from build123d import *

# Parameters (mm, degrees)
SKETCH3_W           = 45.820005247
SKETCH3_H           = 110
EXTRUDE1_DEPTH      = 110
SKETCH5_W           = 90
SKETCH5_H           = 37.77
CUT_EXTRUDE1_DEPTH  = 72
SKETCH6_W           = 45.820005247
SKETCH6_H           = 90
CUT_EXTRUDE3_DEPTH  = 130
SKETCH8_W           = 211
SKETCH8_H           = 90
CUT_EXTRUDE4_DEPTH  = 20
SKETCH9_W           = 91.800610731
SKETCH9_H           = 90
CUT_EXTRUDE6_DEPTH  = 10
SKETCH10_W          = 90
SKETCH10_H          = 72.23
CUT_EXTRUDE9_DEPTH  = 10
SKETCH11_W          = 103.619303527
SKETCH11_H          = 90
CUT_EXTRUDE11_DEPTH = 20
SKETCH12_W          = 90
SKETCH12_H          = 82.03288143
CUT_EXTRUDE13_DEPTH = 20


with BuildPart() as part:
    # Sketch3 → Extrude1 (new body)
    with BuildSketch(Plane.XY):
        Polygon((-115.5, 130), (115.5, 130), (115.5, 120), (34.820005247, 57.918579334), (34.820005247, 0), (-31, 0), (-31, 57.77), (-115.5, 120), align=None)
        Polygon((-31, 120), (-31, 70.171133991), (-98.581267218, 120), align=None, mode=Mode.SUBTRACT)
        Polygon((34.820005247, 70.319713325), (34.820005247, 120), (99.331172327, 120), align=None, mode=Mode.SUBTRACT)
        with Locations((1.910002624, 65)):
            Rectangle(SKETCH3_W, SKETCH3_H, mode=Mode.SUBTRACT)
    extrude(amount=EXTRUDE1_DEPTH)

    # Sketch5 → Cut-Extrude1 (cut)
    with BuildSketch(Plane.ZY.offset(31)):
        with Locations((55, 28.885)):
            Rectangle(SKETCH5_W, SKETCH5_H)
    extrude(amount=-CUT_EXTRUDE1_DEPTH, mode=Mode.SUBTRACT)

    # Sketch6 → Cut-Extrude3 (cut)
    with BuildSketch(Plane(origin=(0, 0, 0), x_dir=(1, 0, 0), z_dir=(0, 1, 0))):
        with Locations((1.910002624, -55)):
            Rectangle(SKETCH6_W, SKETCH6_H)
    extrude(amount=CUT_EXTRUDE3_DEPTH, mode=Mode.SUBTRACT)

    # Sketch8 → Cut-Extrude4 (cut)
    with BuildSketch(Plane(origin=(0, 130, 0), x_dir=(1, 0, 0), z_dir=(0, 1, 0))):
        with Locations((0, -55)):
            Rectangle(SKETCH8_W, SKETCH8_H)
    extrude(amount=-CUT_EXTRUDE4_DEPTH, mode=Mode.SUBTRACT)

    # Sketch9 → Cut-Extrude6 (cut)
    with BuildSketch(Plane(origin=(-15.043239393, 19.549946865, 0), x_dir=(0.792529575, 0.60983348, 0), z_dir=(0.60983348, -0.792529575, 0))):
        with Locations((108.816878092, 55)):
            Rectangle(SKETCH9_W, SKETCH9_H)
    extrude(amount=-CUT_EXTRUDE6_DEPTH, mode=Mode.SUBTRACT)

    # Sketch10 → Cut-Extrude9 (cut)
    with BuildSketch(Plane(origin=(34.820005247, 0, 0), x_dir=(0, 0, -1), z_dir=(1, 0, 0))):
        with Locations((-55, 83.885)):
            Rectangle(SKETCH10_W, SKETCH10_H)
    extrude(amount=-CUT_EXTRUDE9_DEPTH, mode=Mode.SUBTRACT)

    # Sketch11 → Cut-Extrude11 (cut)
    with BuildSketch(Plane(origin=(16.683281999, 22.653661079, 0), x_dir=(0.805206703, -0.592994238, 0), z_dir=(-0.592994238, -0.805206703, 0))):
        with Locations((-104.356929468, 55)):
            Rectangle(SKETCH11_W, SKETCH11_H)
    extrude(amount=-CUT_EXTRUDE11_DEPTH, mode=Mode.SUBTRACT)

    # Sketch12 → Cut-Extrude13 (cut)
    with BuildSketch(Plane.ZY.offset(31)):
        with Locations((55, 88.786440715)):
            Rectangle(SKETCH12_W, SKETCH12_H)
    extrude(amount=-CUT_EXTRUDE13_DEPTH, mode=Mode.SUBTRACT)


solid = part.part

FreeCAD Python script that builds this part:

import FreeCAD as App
import Part
import Sketcher

V = App.Vector
Q = App.Units.Quantity

doc = App.newDocument("Part")
body = doc.addObject("PartDesign::Body", "Body")

sketch1 = doc.addObject("Sketcher::SketchObject", "Sketch")
body.addObject(sketch1)
sketch1.AttachmentSupport = (doc.XY_Plane, [""])
sketch1.MapMode = "FlatFace"
sketch1.addGeometry(Part.LineSegment(V(116, 130, 0), V(-116, 130, 0)), False)
sketch1.addGeometry(Part.LineSegment(V(-116, 130, 0), V(-116, 120, 0)), False)
sketch1.addGeometry(Part.LineSegment(V(-116, 120, 0), V(-31, 58, 0)), False)
sketch1.addGeometry(Part.LineSegment(V(-31, 58, 0), V(-31, 0, 0)), False)
sketch1.addGeometry(Part.LineSegment(V(-31, 0, 0), V(35, 0, 0)), False)
sketch1.addGeometry(Part.LineSegment(V(35, 0, 0), V(35, 58, 0)), False)
sketch1.addGeometry(Part.LineSegment(V(35, 58, 0), V(116, 120, 0)), False)
sketch1.addGeometry(Part.LineSegment(V(116, 120, 0), V(116, 130, 0)), False)
sketch1.addGeometry(Part.LineSegment(V(-21, 10, 0), V(-21, 120, 0)), False)
sketch1.addGeometry(Part.LineSegment(V(-21, 120, 0), V(25, 120, 0)), False)
sketch1.addGeometry(Part.LineSegment(V(25, 120, 0), V(25, 10, 0)), False)
sketch1.addGeometry(Part.LineSegment(V(25, 10, 0), V(-21, 10, 0)), False)
sketch1.addGeometry(Part.LineSegment(V(35, 70, 0), V(35, 120, 0)), False)
sketch1.addGeometry(Part.LineSegment(V(35, 120, 0), V(99, 120, 0)), False)
sketch1.addGeometry(Part.LineSegment(V(99, 120, 0), V(35, 70, 0)), False)
sketch1.addGeometry(Part.LineSegment(V(-31, 120, 0), V(-31, 70, 0)), False)
sketch1.addGeometry(Part.LineSegment(V(-31, 70, 0), V(-99, 120, 0)), False)
sketch1.addGeometry(Part.LineSegment(V(-99, 120, 0), V(-31, 120, 0)), False)
sketch1.addConstraint(Sketcher.Constraint("Coincident", 0, 2, 1, 1))
sketch1.addConstraint(Sketcher.Constraint("Coincident", 1, 2, 2, 1))
sketch1.addConstraint(Sketcher.Constraint("Coincident", 2, 2, 3, 1))
sketch1.addConstraint(Sketcher.Constraint("Coincident", 3, 2, 4, 1))
sketch1.addConstraint(Sketcher.Constraint("Coincident", 4, 2, 5, 1))
sketch1.addConstraint(Sketcher.Constraint("Coincident", 5, 2, 6, 1))
sketch1.addConstraint(Sketcher.Constraint("Coincident", 6, 2, 7, 1))
sketch1.addConstraint(Sketcher.Constraint("Coincident", 7, 2, 0, 1))
sketch1.addConstraint(Sketcher.Constraint("Coincident", 8, 2, 9, 1))
sketch1.addConstraint(Sketcher.Constraint("Coincident", 9, 2, 10, 1))
sketch1.addConstraint(Sketcher.Constraint("Coincident", 10, 2, 11, 1))
sketch1.addConstraint(Sketcher.Constraint("Coincident", 11, 2, 8, 1))
sketch1.addConstraint(Sketcher.Constraint("Coincident", 12, 2, 13, 1))
sketch1.addConstraint(Sketcher.Constraint("Coincident", 13, 2, 14, 1))
sketch1.addConstraint(Sketcher.Constraint("Coincident", 14, 2, 12, 1))
sketch1.addConstraint(Sketcher.Constraint("Coincident", 15, 2, 16, 1))
sketch1.addConstraint(Sketcher.Constraint("Coincident", 16, 2, 17, 1))
sketch1.addConstraint(Sketcher.Constraint("Coincident", 17, 2, 15, 1))
sketch1.addConstraint(Sketcher.Constraint("Horizontal", 0))
sketch1.addConstraint(Sketcher.Constraint("Vertical", 1))
sketch1.addConstraint(Sketcher.Constraint("Vertical", 3))
sketch1.addConstraint(Sketcher.Constraint("Horizontal", 4))
sketch1.addConstraint(Sketcher.Constraint("Vertical", 5))
sketch1.addConstraint(Sketcher.Constraint("Vertical", 7))
sketch1.addConstraint(Sketcher.Constraint("Vertical", 8))
sketch1.addConstraint(Sketcher.Constraint("Horizontal", 9))
sketch1.addConstraint(Sketcher.Constraint("Vertical", 10))
sketch1.addConstraint(Sketcher.Constraint("Horizontal", 11))
sketch1.addConstraint(Sketcher.Constraint("Vertical", 12))
sketch1.addConstraint(Sketcher.Constraint("Horizontal", 13))
sketch1.addConstraint(Sketcher.Constraint("Vertical", 15))
sketch1.addConstraint(Sketcher.Constraint("Horizontal", 17))
sketch1.addConstraint(Sketcher.Constraint("Symmetric", 1, 2, 6, 2, -2))
sketch1.addConstraint(Sketcher.Constraint("PointOnObject", 3, 2, -1))
sketch1.addConstraint(Sketcher.Constraint("Horizontal", 6, 2, 8, 2))
sketch1.addConstraint(Sketcher.Constraint("Horizontal", 9, 2, 12, 2))
sketch1.addConstraint(Sketcher.Constraint("Horizontal", 13, 2, 16, 2))
sketch1.addConstraint(Sketcher.Constraint("Vertical", 5, 2, 12, 2))
sketch1.addConstraint(Sketcher.Constraint("Vertical", 3, 2, 15, 2))
sketch1.addConstraint(Sketcher.Constraint("DistanceX", 0, 2, 0, 1, Q("231 mm")))
sketch1.addConstraint(Sketcher.Constraint("DistanceY", 1, 2, 1, 1, Q("10 mm")))
sketch1.addConstraint(Sketcher.Constraint("DistanceY", 8, 1, 8, 2, Q("110 mm")))
sketch1.addConstraint(Sketcher.Constraint("DistanceY", -1, 1, 0, 2, Q("130 mm")))
sketch1.addConstraint(Sketcher.Constraint("DistanceX", 2, 2, -1, 1, Q("31 mm")))
sketch1.addConstraint(Sketcher.Constraint("DistanceX", 8, 2, -1, 1, Q("21 mm")))
sketch1.addConstraint(Sketcher.Constraint("Angle", 14, Q("-142.4 deg")))
sketch1.addConstraint(Sketcher.Constraint("DistanceX", 9, 2, 5, 2, Q("10 mm")))
sketch1.addConstraint(Sketcher.Constraint("DistanceY", 3, 2, 3, 1, Q("57.77 mm")))
sketch1.addConstraint(Sketcher.Constraint("DistanceY", 5, 1, 5, 2, Q("57.918579 mm")))
sketch1.addConstraint(Sketcher.Constraint("Distance", 6, Q("101.800611 mm")))
sketch1.addConstraint(Sketcher.Constraint("DistanceX", 13, 1, 13, 2, Q("64.511167 mm")))
sketch1.addConstraint(Sketcher.Constraint("DistanceX", 17, 1, 17, 2, Q("67.581267 mm")))
sketch1.addConstraint(Sketcher.Constraint("DistanceY", 15, 2, 15, 1, Q("49.828866 mm")))
pad1 = doc.addObject("PartDesign::Pad", "Pad")
body.addObject(pad1)
pad1.Profile = sketch1
pad1.Length = 110

sketch2 = doc.addObject("Sketcher::SketchObject", "Sketch001")
body.addObject(sketch2)
sketch2.AttachmentSupport = (doc.YZ_Plane, [""])
sketch2.MapMode = "FlatFace"
sketch2.AttachmentOffset = App.Placement(V(0, 0, -31), App.Rotation())
sketch2.addGeometry(Part.LineSegment(V(48, 10, 0), V(10, 10, 0)), False)
sketch2.addGeometry(Part.LineSegment(V(10, 10, 0), V(10, 100, 0)), False)
sketch2.addGeometry(Part.LineSegment(V(10, 100, 0), V(48, 100, 0)), False)
sketch2.addGeometry(Part.LineSegment(V(48, 100, 0), V(48, 10, 0)), False)
sketch2.addConstraint(Sketcher.Constraint("Coincident", 0, 2, 1, 1))
sketch2.addConstraint(Sketcher.Constraint("Coincident", 1, 2, 2, 1))
sketch2.addConstraint(Sketcher.Constraint("Coincident", 2, 2, 3, 1))
sketch2.addConstraint(Sketcher.Constraint("Coincident", 3, 2, 0, 1))
sketch2.addConstraint(Sketcher.Constraint("Horizontal", 0))
sketch2.addConstraint(Sketcher.Constraint("Vertical", 1))
sketch2.addConstraint(Sketcher.Constraint("Horizontal", 2))
sketch2.addConstraint(Sketcher.Constraint("Vertical", 3))
sketch2.addConstraint(Sketcher.Constraint("DistanceY", 1, 1, 1, 2, Q("90 mm")))
sketch2.addConstraint(Sketcher.Constraint("DistanceX", -1, 1, 0, 2, Q("10 mm")))
sketch2.addConstraint(Sketcher.Constraint("DistanceY", -1, 1, 0, 2, Q("10 mm")))
sketch2.addConstraint(Sketcher.Constraint("DistanceX", 0, 2, 0, 1, Q("37.77 mm")))
pocket1 = doc.addObject("PartDesign::Pocket", "Pocket")
body.addObject(pocket1)
pocket1.Profile = sketch2
pocket1.Length = 72
pocket1.Reversed = True

sketch3 = doc.addObject("Sketcher::SketchObject", "Sketch002")
body.addObject(sketch3)
sketch3.AttachmentSupport = (doc.XZ_Plane, [""])
sketch3.MapMode = "FlatFace"
sketch3.addGeometry(Part.LineSegment(V(-21, 10, 0), V(-21, 100, 0)), False)
sketch3.addGeometry(Part.LineSegment(V(-21, 100, 0), V(25, 100, 0)), False)
sketch3.addGeometry(Part.LineSegment(V(25, 100, 0), V(25, 10, 0)), False)
sketch3.addGeometry(Part.LineSegment(V(25, 10, 0), V(-21, 10, 0)), False)
sketch3.addConstraint(Sketcher.Constraint("Coincident", 0, 2, 1, 1))
sketch3.addConstraint(Sketcher.Constraint("Coincident", 1, 2, 2, 1))
sketch3.addConstraint(Sketcher.Constraint("Coincident", 2, 2, 3, 1))
sketch3.addConstraint(Sketcher.Constraint("Coincident", 3, 2, 0, 1))
sketch3.addConstraint(Sketcher.Constraint("Vertical", 0))
sketch3.addConstraint(Sketcher.Constraint("Horizontal", 1))
sketch3.addConstraint(Sketcher.Constraint("Vertical", 2))
sketch3.addConstraint(Sketcher.Constraint("Horizontal", 3))
sketch3.addConstraint(Sketcher.Constraint("DistanceY", 0, 1, 0, 2, Q("90 mm")))
sketch3.addConstraint(Sketcher.Constraint("DistanceX", 0, 2, -1, 1, Q("21 mm")))
sketch3.addConstraint(Sketcher.Constraint("DistanceY", -1, 1, 0, 2, Q("100 mm")))
sketch3.addConstraint(Sketcher.Constraint("DistanceX", 1, 1, 1, 2, Q("45.820005 mm")))
pocket2 = doc.addObject("PartDesign::Pocket", "Pocket001")
body.addObject(pocket2)
pocket2.Profile = sketch3
pocket2.Length = 130

sketch4 = doc.addObject("Sketcher::SketchObject", "Sketch003")
body.addObject(sketch4)
sketch4.AttachmentSupport = (doc.XZ_Plane, [""])
sketch4.MapMode = "FlatFace"
sketch4.AttachmentOffset = App.Placement(V(0, 0, -130), App.Rotation())
sketch4.addGeometry(Part.LineSegment(V(-106, 10, 0), V(-106, 100, 0)), False)
sketch4.addGeometry(Part.LineSegment(V(-106, 100, 0), V(106, 100, 0)), False)
sketch4.addGeometry(Part.LineSegment(V(106, 100, 0), V(106, 10, 0)), False)
sketch4.addGeometry(Part.LineSegment(V(106, 10, 0), V(-106, 10, 0)), False)
sketch4.addConstraint(Sketcher.Constraint("Coincident", 0, 2, 1, 1))
sketch4.addConstraint(Sketcher.Constraint("Coincident", 1, 2, 2, 1))
sketch4.addConstraint(Sketcher.Constraint("Coincident", 2, 2, 3, 1))
sketch4.addConstraint(Sketcher.Constraint("Coincident", 3, 2, 0, 1))
sketch4.addConstraint(Sketcher.Constraint("Vertical", 0))
sketch4.addConstraint(Sketcher.Constraint("Horizontal", 1))
sketch4.addConstraint(Sketcher.Constraint("Vertical", 2))
sketch4.addConstraint(Sketcher.Constraint("Horizontal", 3))
sketch4.addConstraint(Sketcher.Constraint("DistanceX", 1, 1, 1, 2, Q("211 mm")))
sketch4.addConstraint(Sketcher.Constraint("DistanceY", 0, 1, 0, 2, Q("90 mm")))
sketch4.addConstraint(Sketcher.Constraint("DistanceY", -1, 1, 0, 2, Q("100 mm")))
sketch4.addConstraint(Sketcher.Constraint("DistanceX", 0, 2, -1, 1, Q("105.5 mm")))
pocket3 = doc.addObject("PartDesign::Pocket", "Pocket002")
body.addObject(pocket3)
pocket3.Profile = sketch4
pocket3.Length = 20
pocket3.Reversed = True

sketch5 = doc.addObject("Sketcher::SketchObject", "Sketch004")
body.addObject(sketch5)
sketch5.Placement = App.Placement(V(-15.043239, 19.549947, 0), App.Rotation(V(0.792529575, 0.60983348, 0), V(0, 0, 1.000000001), V(0.60983348, -0.792529575, 0), "ZXY"))
sketch5.addGeometry(Part.LineSegment(V(63, 100, 0), V(63, 10, 0)), False)
sketch5.addGeometry(Part.LineSegment(V(63, 10, 0), V(155, 10, 0)), False)
sketch5.addGeometry(Part.LineSegment(V(155, 10, 0), V(155, 100, 0)), False)
sketch5.addGeometry(Part.LineSegment(V(155, 100, 0), V(63, 100, 0)), False)
sketch5.addConstraint(Sketcher.Constraint("Coincident", 0, 2, 1, 1))
sketch5.addConstraint(Sketcher.Constraint("Coincident", 1, 2, 2, 1))
sketch5.addConstraint(Sketcher.Constraint("Coincident", 2, 2, 3, 1))
sketch5.addConstraint(Sketcher.Constraint("Coincident", 3, 2, 0, 1))
sketch5.addConstraint(Sketcher.Constraint("Vertical", 0))
sketch5.addConstraint(Sketcher.Constraint("Horizontal", 1))
sketch5.addConstraint(Sketcher.Constraint("Vertical", 2))
sketch5.addConstraint(Sketcher.Constraint("Horizontal", 3))
sketch5.addConstraint(Sketcher.Constraint("DistanceY", 0, 2, 0, 1, Q("90 mm")))
sketch5.addConstraint(Sketcher.Constraint("DistanceY", -1, 1, 0, 2, Q("10 mm")))
sketch5.addConstraint(Sketcher.Constraint("DistanceX", 1, 1, 1, 2, Q("91.800611 mm")))
sketch5.addConstraint(Sketcher.Constraint("DistanceX", -1, 1, 0, 2, Q("62.916573 mm")))
pocket4 = doc.addObject("PartDesign::Pocket", "Pocket003")
body.addObject(pocket4)
pocket4.Profile = sketch5
pocket4.Length = 10

sketch6 = doc.addObject("Sketcher::SketchObject", "Sketch005")
body.addObject(sketch6)
sketch6.AttachmentSupport = (doc.YZ_Plane, [""])
sketch6.MapMode = "FlatFace"
sketch6.AttachmentOffset = App.Placement(V(0, 0, 34.820005), App.Rotation())
sketch6.addGeometry(Part.LineSegment(V(120, 100, 0), V(48, 100, 0)), False)
sketch6.addGeometry(Part.LineSegment(V(48, 100, 0), V(48, 10, 0)), False)
sketch6.addGeometry(Part.LineSegment(V(48, 10, 0), V(120, 10, 0)), False)
sketch6.addGeometry(Part.LineSegment(V(120, 10, 0), V(120, 100, 0)), False)
sketch6.addConstraint(Sketcher.Constraint("Coincident", 0, 2, 1, 1))
sketch6.addConstraint(Sketcher.Constraint("Coincident", 1, 2, 2, 1))
sketch6.addConstraint(Sketcher.Constraint("Coincident", 2, 2, 3, 1))
sketch6.addConstraint(Sketcher.Constraint("Coincident", 3, 2, 0, 1))
sketch6.addConstraint(Sketcher.Constraint("Horizontal", 0))
sketch6.addConstraint(Sketcher.Constraint("Vertical", 1))
sketch6.addConstraint(Sketcher.Constraint("Horizontal", 2))
sketch6.addConstraint(Sketcher.Constraint("Vertical", 3))
sketch6.addConstraint(Sketcher.Constraint("DistanceY", 1, 2, 1, 1, Q("90 mm")))
sketch6.addConstraint(Sketcher.Constraint("DistanceY", -1, 1, 0, 2, Q("100 mm")))
sketch6.addConstraint(Sketcher.Constraint("DistanceX", -1, 1, 2, 2, Q("120 mm")))
sketch6.addConstraint(Sketcher.Constraint("DistanceX", 0, 2, 0, 1, Q("72.23 mm")))
pocket5 = doc.addObject("PartDesign::Pocket", "Pocket004")
body.addObject(pocket5)
pocket5.Profile = sketch6
pocket5.Length = 10

sketch7 = doc.addObject("Sketcher::SketchObject", "Sketch006")
body.addObject(sketch7)
sketch7.Placement = App.Placement(V(16.683282, 22.653661, 0), App.Rotation(V(0.805206703, -0.592994238, 0), V(0, 0, 1.000000001), V(-0.592994238, -0.805206703, 0), "ZXY"))
sketch7.addGeometry(Part.LineSegment(V(-156, 100, 0), V(-156, 10, 0)), False)
sketch7.addGeometry(Part.LineSegment(V(-156, 10, 0), V(-53, 10, 0)), False)
sketch7.addGeometry(Part.LineSegment(V(-53, 10, 0), V(-53, 100, 0)), False)
sketch7.addGeometry(Part.LineSegment(V(-53, 100, 0), V(-156, 100, 0)), False)
sketch7.addConstraint(Sketcher.Constraint("Coincident", 0, 2, 1, 1))
sketch7.addConstraint(Sketcher.Constraint("Coincident", 1, 2, 2, 1))
sketch7.addConstraint(Sketcher.Constraint("Coincident", 2, 2, 3, 1))
sketch7.addConstraint(Sketcher.Constraint("Coincident", 3, 2, 0, 1))
sketch7.addConstraint(Sketcher.Constraint("Vertical", 0))
sketch7.addConstraint(Sketcher.Constraint("Horizontal", 1))
sketch7.addConstraint(Sketcher.Constraint("Vertical", 2))
sketch7.addConstraint(Sketcher.Constraint("Horizontal", 3))
sketch7.addConstraint(Sketcher.Constraint("DistanceY", 0, 2, 0, 1, Q("90 mm")))
sketch7.addConstraint(Sketcher.Constraint("DistanceY", -1, 1, 0, 2, Q("10 mm")))
sketch7.addConstraint(Sketcher.Constraint("DistanceX", 1, 1, 1, 2, Q("103.619304 mm")))
sketch7.addConstraint(Sketcher.Constraint("DistanceX", 0, 2, -1, 1, Q("156.166581 mm")))
pocket6 = doc.addObject("PartDesign::Pocket", "Pocket005")
body.addObject(pocket6)
pocket6.Profile = sketch7
pocket6.Length = 20

sketch8 = doc.addObject("Sketcher::SketchObject", "Sketch007")
body.addObject(sketch8)
sketch8.AttachmentSupport = (doc.YZ_Plane, [""])
sketch8.MapMode = "FlatFace"
sketch8.AttachmentOffset = App.Placement(V(0, 0, -31), App.Rotation())
sketch8.addGeometry(Part.LineSegment(V(130, 10, 0), V(48, 10, 0)), False)
sketch8.addGeometry(Part.LineSegment(V(48, 10, 0), V(48, 100, 0)), False)
sketch8.addGeometry(Part.LineSegment(V(48, 100, 0), V(130, 100, 0)), False)
sketch8.addGeometry(Part.LineSegment(V(130, 100, 0), V(130, 10, 0)), False)
sketch8.addConstraint(Sketcher.Constraint("Coincident", 0, 2, 1, 1))
sketch8.addConstraint(Sketcher.Constraint("Coincident", 1, 2, 2, 1))
sketch8.addConstraint(Sketcher.Constraint("Coincident", 2, 2, 3, 1))
sketch8.addConstraint(Sketcher.Constraint("Coincident", 3, 2, 0, 1))
sketch8.addConstraint(Sketcher.Constraint("Horizontal", 0))
sketch8.addConstraint(Sketcher.Constraint("Vertical", 1))
sketch8.addConstraint(Sketcher.Constraint("Horizontal", 2))
sketch8.addConstraint(Sketcher.Constraint("Vertical", 3))
sketch8.addConstraint(Sketcher.Constraint("DistanceY", 1, 1, 1, 2, Q("90 mm")))
sketch8.addConstraint(Sketcher.Constraint("DistanceY", -1, 1, 0, 2, Q("10 mm")))
sketch8.addConstraint(Sketcher.Constraint("DistanceX", -1, 1, 0, 2, Q("47.77 mm")))
sketch8.addConstraint(Sketcher.Constraint("DistanceX", 0, 2, 0, 1, Q("82.032881 mm")))
pocket7 = doc.addObject("PartDesign::Pocket", "Pocket006")
body.addObject(pocket7)
pocket7.Profile = sketch8
pocket7.Length = 20
pocket7.Reversed = True

doc.recompute()
